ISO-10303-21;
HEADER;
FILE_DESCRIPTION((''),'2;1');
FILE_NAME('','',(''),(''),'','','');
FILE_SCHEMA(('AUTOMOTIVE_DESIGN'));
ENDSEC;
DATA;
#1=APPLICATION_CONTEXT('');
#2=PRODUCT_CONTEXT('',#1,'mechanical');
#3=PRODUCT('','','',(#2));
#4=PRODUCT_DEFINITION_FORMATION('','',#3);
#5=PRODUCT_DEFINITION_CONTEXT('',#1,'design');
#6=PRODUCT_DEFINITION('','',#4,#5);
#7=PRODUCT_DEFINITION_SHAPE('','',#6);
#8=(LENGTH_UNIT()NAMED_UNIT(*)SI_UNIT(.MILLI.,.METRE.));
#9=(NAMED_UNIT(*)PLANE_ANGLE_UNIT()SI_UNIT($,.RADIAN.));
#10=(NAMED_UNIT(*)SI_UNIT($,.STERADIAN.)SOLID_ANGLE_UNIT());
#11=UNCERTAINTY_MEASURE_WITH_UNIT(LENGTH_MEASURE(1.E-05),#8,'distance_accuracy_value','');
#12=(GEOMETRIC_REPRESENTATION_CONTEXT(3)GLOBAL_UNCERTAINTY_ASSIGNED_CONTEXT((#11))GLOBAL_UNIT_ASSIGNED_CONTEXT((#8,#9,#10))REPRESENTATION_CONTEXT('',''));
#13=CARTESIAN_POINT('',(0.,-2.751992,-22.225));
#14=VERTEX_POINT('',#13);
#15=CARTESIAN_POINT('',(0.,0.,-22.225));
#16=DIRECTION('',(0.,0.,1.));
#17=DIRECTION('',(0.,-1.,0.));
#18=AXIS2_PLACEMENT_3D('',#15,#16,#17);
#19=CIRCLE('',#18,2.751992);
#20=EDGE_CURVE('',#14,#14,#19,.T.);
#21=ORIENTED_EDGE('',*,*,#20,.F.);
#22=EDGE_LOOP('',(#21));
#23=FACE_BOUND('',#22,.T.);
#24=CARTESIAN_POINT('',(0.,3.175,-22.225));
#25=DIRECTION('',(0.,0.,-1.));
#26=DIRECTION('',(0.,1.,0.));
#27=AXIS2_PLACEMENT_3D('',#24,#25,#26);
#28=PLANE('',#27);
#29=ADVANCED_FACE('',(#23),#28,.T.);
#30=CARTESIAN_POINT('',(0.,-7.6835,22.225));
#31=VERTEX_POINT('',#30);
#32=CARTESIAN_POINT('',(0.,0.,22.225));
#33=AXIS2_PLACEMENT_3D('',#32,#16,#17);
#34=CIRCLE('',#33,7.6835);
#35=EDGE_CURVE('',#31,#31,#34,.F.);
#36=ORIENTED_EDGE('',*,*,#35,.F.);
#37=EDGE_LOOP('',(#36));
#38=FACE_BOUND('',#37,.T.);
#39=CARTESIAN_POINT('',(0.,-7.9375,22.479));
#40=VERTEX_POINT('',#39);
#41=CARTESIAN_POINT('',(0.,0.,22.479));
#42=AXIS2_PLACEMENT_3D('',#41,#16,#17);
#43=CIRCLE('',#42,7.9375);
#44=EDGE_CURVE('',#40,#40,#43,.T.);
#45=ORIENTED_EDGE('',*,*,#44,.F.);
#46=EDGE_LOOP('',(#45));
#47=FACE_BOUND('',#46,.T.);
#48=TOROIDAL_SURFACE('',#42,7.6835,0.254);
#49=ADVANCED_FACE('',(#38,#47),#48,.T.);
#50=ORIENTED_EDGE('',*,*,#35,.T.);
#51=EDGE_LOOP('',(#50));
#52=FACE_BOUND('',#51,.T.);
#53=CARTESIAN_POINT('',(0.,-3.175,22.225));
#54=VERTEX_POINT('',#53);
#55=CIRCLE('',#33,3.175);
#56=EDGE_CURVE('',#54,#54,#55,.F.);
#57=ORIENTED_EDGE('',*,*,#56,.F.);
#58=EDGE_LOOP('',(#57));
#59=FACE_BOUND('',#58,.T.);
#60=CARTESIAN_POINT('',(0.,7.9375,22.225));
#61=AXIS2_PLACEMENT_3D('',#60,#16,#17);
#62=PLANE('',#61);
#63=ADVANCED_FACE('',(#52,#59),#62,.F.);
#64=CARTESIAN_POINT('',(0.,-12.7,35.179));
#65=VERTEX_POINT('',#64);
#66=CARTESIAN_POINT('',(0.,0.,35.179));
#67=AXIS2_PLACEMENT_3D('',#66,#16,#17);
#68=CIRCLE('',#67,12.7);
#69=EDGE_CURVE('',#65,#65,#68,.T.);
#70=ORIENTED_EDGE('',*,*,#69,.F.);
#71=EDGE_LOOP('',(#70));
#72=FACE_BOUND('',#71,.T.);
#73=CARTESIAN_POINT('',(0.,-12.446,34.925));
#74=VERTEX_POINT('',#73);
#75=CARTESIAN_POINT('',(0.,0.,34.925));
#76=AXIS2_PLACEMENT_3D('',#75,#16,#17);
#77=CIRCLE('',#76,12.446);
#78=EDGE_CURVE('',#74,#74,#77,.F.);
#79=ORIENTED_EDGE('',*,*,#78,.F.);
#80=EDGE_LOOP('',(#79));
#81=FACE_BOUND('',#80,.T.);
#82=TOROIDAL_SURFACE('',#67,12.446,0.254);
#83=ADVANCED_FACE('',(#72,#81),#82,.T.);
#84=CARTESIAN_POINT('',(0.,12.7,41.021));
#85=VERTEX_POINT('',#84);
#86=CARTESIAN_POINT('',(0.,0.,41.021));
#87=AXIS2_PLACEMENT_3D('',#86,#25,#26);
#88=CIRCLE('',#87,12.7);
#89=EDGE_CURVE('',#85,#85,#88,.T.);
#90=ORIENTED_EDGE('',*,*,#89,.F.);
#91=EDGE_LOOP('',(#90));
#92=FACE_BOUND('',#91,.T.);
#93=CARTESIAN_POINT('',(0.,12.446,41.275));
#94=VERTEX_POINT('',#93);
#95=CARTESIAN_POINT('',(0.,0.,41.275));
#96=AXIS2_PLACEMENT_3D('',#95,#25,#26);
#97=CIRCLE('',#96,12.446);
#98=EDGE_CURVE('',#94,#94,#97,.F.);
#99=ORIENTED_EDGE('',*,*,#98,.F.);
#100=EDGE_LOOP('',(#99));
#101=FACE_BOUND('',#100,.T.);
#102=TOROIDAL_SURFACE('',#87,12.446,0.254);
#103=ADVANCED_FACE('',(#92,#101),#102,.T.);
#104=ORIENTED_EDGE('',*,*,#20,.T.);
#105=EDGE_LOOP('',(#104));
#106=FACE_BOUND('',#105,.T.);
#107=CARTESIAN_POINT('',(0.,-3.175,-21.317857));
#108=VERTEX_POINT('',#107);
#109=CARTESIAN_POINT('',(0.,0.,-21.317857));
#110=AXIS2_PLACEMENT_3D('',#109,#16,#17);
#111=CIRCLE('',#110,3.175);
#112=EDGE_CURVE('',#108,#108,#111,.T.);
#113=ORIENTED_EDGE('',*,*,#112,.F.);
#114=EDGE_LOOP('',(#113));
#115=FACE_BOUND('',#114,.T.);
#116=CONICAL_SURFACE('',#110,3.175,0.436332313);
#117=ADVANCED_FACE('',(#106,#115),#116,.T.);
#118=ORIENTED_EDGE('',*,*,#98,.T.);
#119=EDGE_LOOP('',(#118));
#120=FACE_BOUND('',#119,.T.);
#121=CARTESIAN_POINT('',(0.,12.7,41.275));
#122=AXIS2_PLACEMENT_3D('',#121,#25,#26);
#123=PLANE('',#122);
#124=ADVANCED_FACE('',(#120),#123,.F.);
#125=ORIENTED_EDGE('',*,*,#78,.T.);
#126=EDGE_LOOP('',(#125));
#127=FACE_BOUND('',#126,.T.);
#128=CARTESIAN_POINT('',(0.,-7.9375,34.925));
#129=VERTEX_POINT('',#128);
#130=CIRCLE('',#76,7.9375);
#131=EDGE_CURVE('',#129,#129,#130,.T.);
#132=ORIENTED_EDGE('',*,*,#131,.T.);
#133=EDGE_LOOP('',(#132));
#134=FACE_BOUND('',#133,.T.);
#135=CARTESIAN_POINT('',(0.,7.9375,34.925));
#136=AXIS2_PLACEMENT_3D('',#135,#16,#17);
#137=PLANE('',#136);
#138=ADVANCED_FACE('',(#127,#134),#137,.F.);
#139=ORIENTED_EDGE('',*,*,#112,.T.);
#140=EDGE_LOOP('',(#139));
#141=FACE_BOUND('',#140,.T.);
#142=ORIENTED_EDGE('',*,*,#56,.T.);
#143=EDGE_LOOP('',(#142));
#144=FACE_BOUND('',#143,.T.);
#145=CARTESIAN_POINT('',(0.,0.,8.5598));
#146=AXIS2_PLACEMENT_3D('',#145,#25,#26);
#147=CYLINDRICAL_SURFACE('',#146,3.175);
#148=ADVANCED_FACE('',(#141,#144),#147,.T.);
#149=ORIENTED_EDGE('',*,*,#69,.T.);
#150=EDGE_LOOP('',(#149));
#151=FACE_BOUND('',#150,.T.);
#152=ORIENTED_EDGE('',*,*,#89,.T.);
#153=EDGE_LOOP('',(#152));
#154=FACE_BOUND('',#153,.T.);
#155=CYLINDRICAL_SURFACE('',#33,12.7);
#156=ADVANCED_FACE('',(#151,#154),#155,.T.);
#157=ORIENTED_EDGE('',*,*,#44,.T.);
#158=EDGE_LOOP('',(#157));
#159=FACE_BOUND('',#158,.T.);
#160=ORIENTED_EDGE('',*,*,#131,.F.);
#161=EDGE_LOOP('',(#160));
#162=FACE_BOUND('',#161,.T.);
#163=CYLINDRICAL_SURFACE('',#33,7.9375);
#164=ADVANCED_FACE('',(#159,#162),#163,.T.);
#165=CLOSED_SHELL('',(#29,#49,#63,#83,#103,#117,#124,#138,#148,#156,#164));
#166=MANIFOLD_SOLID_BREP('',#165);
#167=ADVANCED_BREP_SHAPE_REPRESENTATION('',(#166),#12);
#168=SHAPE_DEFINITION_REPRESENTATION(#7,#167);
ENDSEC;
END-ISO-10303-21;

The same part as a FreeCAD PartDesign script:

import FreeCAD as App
import Part
import Sketcher
from FreeCAD import Vector
Q = App.Units.Quantity


def edges_at(feature, points):
    """Names of the edges that pass closest to the given points."""
    edges = feature.Shape.Edges
    near = lambda p: min(range(len(edges)), key=lambda i: edges[i].distToShape(Part.Vertex(*p))[0])
    return sorted({f"Edge{near(p) + 1}" for p in points})


def add_polygon(sketch, points):
    """Adds a closed chain of lines whose ends are joined by coincident constraints."""
    first, n = sketch.GeometryCount, len(points)
    for a, b in zip(points, points[1:] + points[:1]):
        sketch.addGeometry(Part.LineSegment(App.Vector(*a, 0), App.Vector(*b, 0)), False)
    for i in range(n):
        sketch.addConstraint(Sketcher.Constraint("Coincident", first + i, 2, first + (i + 1) % n, 1))

doc = App.newDocument("Part")
body = doc.addObject("PartDesign::Body", "Body")

# Sketch on YZ plane
sketch1 = body.newObject("Sketcher::SketchObject", "Sketch")
sketch1.AttachmentSupport = (doc.getObject("YZ_Plane"), [""])
sketch1.MapMode = "FlatFace"
add_polygon(sketch1, [(3.175, 22.225), (0, 22.225), (0, -22.225), (3.175, -22.225)])  # lines 0-3
sketch1.addConstraint(Sketcher.Constraint("Horizontal", 0))
sketch1.addConstraint(Sketcher.Constraint("Vertical", 1))
sketch1.addConstraint(Sketcher.Constraint("Horizontal", 2))
sketch1.addConstraint(Sketcher.Constraint("Vertical", 3))
sketch1.addConstraint(Sketcher.Constraint("Symmetric", 0, 2, 1, 2, -1, 1))
sketch1.addConstraint(Sketcher.Constraint("DistanceY", 1, 2, 1, 1, Q("1.75 in")))
sketch1.addConstraint(Sketcher.Constraint("DistanceX", 0, 2, 0, 1, Q("0.125 in")))
revolution = body.newObject("PartDesign::Revolution", "Revolution")
revolution.Profile = sketch1
revolution.ReferenceAxis = (sketch1, ["V_Axis"])
revolution.Angle = 360

# Sketch on YZ plane
sketch2 = body.newObject("Sketcher::SketchObject", "Sketch001")
sketch2.AttachmentSupport = (doc.getObject("YZ_Plane"), [""])
sketch2.MapMode = "FlatFace"
add_polygon(sketch2, [(7.9375, 22.225), (7.9375, 34.925), (12.7, 34.925), (12.7, 41.275), (0, 41.275), (0, 22.225)])  # lines 0-5
sketch2.addConstraint(Sketcher.Constraint("Vertical", 0))
sketch2.addConstraint(Sketcher.Constraint("Horizontal", 1))
sketch2.addConstraint(Sketcher.Constraint("Vertical", 2))
sketch2.addConstraint(Sketcher.Constraint("Horizontal", 3))
sketch2.addConstraint(Sketcher.Constraint("Vertical", 4))
sketch2.addConstraint(Sketcher.Constraint("Horizontal", 5))
sketch2.addConstraint(Sketcher.Constraint("PointOnObject", 3, 2, -2))
sketch2.addConstraint(Sketcher.Constraint("Equal", 3, 0))
sketch2.addConstraint(Sketcher.Constraint("DistanceX", 3, 2, 3, 1, Q("0.5 in")))
sketch2.addConstraint(Sketcher.Constraint("DistanceY", 2, 1, 2, 2, Q("0.25 in")))
sketch2.addConstraint(Sketcher.Constraint("DistanceX", 1, 1, 1, 2, Q("0.1875 in")))
sketch2.addConstraint(Sketcher.Constraint("DistanceY", -1, 1, 0, 2, Q("1.375 in")))
revolution2 = body.newObject("PartDesign::Revolution", "Revolution001")
revolution2.Profile = sketch2
revolution2.ReferenceAxis = (sketch2, ["V_Axis"])
revolution2.Angle = 360

# Sketch on YZ plane
sketch3 = body.newObject("Sketcher::SketchObject", "Sketch002")
sketch3.AttachmentSupport = (doc.getObject("YZ_Plane"), [""])
sketch3.MapMode = "FlatFace"
add_polygon(sketch3, [(3.175, -21.317857), (2.751992, -22.225), (3.175, -22.225)])  # lines 0-2
sketch3.addConstraint(Sketcher.Constraint("Horizontal", 1))
sketch3.addConstraint(Sketcher.Constraint("Vertical", 2))
sketch3.addConstraint(Sketcher.Constraint("Angle", 0, Q("-115 deg")))
sketch3.addConstraint(Sketcher.Constraint("DistanceY", 0, 2, -1, 1, Q("0.875 in")))
sketch3.addConstraint(Sketcher.Constraint("DistanceX", -1, 1, 1, 2, Q("0.125 in")))
sketch3.addConstraint(Sketcher.Constraint("Distance", 0, Q("1.000921 mm")))
groove = body.newObject("PartDesign::Groove", "Groove")
groove.Profile = sketch3
groove.ReferenceAxis = (sketch3, ["V_Axis"])
groove.Angle = 360
doc.recompute()

fillet = body.newObject("PartDesign::Fillet", "Fillet")
fillet.Base = (groove, edges_at(groove, [(0, -7.938, 22.225), (0, -12.7, 34.925), (0, -12.7, 41.275)]))
fillet.Radius = Q("0.01 in")

doc.recompute()
